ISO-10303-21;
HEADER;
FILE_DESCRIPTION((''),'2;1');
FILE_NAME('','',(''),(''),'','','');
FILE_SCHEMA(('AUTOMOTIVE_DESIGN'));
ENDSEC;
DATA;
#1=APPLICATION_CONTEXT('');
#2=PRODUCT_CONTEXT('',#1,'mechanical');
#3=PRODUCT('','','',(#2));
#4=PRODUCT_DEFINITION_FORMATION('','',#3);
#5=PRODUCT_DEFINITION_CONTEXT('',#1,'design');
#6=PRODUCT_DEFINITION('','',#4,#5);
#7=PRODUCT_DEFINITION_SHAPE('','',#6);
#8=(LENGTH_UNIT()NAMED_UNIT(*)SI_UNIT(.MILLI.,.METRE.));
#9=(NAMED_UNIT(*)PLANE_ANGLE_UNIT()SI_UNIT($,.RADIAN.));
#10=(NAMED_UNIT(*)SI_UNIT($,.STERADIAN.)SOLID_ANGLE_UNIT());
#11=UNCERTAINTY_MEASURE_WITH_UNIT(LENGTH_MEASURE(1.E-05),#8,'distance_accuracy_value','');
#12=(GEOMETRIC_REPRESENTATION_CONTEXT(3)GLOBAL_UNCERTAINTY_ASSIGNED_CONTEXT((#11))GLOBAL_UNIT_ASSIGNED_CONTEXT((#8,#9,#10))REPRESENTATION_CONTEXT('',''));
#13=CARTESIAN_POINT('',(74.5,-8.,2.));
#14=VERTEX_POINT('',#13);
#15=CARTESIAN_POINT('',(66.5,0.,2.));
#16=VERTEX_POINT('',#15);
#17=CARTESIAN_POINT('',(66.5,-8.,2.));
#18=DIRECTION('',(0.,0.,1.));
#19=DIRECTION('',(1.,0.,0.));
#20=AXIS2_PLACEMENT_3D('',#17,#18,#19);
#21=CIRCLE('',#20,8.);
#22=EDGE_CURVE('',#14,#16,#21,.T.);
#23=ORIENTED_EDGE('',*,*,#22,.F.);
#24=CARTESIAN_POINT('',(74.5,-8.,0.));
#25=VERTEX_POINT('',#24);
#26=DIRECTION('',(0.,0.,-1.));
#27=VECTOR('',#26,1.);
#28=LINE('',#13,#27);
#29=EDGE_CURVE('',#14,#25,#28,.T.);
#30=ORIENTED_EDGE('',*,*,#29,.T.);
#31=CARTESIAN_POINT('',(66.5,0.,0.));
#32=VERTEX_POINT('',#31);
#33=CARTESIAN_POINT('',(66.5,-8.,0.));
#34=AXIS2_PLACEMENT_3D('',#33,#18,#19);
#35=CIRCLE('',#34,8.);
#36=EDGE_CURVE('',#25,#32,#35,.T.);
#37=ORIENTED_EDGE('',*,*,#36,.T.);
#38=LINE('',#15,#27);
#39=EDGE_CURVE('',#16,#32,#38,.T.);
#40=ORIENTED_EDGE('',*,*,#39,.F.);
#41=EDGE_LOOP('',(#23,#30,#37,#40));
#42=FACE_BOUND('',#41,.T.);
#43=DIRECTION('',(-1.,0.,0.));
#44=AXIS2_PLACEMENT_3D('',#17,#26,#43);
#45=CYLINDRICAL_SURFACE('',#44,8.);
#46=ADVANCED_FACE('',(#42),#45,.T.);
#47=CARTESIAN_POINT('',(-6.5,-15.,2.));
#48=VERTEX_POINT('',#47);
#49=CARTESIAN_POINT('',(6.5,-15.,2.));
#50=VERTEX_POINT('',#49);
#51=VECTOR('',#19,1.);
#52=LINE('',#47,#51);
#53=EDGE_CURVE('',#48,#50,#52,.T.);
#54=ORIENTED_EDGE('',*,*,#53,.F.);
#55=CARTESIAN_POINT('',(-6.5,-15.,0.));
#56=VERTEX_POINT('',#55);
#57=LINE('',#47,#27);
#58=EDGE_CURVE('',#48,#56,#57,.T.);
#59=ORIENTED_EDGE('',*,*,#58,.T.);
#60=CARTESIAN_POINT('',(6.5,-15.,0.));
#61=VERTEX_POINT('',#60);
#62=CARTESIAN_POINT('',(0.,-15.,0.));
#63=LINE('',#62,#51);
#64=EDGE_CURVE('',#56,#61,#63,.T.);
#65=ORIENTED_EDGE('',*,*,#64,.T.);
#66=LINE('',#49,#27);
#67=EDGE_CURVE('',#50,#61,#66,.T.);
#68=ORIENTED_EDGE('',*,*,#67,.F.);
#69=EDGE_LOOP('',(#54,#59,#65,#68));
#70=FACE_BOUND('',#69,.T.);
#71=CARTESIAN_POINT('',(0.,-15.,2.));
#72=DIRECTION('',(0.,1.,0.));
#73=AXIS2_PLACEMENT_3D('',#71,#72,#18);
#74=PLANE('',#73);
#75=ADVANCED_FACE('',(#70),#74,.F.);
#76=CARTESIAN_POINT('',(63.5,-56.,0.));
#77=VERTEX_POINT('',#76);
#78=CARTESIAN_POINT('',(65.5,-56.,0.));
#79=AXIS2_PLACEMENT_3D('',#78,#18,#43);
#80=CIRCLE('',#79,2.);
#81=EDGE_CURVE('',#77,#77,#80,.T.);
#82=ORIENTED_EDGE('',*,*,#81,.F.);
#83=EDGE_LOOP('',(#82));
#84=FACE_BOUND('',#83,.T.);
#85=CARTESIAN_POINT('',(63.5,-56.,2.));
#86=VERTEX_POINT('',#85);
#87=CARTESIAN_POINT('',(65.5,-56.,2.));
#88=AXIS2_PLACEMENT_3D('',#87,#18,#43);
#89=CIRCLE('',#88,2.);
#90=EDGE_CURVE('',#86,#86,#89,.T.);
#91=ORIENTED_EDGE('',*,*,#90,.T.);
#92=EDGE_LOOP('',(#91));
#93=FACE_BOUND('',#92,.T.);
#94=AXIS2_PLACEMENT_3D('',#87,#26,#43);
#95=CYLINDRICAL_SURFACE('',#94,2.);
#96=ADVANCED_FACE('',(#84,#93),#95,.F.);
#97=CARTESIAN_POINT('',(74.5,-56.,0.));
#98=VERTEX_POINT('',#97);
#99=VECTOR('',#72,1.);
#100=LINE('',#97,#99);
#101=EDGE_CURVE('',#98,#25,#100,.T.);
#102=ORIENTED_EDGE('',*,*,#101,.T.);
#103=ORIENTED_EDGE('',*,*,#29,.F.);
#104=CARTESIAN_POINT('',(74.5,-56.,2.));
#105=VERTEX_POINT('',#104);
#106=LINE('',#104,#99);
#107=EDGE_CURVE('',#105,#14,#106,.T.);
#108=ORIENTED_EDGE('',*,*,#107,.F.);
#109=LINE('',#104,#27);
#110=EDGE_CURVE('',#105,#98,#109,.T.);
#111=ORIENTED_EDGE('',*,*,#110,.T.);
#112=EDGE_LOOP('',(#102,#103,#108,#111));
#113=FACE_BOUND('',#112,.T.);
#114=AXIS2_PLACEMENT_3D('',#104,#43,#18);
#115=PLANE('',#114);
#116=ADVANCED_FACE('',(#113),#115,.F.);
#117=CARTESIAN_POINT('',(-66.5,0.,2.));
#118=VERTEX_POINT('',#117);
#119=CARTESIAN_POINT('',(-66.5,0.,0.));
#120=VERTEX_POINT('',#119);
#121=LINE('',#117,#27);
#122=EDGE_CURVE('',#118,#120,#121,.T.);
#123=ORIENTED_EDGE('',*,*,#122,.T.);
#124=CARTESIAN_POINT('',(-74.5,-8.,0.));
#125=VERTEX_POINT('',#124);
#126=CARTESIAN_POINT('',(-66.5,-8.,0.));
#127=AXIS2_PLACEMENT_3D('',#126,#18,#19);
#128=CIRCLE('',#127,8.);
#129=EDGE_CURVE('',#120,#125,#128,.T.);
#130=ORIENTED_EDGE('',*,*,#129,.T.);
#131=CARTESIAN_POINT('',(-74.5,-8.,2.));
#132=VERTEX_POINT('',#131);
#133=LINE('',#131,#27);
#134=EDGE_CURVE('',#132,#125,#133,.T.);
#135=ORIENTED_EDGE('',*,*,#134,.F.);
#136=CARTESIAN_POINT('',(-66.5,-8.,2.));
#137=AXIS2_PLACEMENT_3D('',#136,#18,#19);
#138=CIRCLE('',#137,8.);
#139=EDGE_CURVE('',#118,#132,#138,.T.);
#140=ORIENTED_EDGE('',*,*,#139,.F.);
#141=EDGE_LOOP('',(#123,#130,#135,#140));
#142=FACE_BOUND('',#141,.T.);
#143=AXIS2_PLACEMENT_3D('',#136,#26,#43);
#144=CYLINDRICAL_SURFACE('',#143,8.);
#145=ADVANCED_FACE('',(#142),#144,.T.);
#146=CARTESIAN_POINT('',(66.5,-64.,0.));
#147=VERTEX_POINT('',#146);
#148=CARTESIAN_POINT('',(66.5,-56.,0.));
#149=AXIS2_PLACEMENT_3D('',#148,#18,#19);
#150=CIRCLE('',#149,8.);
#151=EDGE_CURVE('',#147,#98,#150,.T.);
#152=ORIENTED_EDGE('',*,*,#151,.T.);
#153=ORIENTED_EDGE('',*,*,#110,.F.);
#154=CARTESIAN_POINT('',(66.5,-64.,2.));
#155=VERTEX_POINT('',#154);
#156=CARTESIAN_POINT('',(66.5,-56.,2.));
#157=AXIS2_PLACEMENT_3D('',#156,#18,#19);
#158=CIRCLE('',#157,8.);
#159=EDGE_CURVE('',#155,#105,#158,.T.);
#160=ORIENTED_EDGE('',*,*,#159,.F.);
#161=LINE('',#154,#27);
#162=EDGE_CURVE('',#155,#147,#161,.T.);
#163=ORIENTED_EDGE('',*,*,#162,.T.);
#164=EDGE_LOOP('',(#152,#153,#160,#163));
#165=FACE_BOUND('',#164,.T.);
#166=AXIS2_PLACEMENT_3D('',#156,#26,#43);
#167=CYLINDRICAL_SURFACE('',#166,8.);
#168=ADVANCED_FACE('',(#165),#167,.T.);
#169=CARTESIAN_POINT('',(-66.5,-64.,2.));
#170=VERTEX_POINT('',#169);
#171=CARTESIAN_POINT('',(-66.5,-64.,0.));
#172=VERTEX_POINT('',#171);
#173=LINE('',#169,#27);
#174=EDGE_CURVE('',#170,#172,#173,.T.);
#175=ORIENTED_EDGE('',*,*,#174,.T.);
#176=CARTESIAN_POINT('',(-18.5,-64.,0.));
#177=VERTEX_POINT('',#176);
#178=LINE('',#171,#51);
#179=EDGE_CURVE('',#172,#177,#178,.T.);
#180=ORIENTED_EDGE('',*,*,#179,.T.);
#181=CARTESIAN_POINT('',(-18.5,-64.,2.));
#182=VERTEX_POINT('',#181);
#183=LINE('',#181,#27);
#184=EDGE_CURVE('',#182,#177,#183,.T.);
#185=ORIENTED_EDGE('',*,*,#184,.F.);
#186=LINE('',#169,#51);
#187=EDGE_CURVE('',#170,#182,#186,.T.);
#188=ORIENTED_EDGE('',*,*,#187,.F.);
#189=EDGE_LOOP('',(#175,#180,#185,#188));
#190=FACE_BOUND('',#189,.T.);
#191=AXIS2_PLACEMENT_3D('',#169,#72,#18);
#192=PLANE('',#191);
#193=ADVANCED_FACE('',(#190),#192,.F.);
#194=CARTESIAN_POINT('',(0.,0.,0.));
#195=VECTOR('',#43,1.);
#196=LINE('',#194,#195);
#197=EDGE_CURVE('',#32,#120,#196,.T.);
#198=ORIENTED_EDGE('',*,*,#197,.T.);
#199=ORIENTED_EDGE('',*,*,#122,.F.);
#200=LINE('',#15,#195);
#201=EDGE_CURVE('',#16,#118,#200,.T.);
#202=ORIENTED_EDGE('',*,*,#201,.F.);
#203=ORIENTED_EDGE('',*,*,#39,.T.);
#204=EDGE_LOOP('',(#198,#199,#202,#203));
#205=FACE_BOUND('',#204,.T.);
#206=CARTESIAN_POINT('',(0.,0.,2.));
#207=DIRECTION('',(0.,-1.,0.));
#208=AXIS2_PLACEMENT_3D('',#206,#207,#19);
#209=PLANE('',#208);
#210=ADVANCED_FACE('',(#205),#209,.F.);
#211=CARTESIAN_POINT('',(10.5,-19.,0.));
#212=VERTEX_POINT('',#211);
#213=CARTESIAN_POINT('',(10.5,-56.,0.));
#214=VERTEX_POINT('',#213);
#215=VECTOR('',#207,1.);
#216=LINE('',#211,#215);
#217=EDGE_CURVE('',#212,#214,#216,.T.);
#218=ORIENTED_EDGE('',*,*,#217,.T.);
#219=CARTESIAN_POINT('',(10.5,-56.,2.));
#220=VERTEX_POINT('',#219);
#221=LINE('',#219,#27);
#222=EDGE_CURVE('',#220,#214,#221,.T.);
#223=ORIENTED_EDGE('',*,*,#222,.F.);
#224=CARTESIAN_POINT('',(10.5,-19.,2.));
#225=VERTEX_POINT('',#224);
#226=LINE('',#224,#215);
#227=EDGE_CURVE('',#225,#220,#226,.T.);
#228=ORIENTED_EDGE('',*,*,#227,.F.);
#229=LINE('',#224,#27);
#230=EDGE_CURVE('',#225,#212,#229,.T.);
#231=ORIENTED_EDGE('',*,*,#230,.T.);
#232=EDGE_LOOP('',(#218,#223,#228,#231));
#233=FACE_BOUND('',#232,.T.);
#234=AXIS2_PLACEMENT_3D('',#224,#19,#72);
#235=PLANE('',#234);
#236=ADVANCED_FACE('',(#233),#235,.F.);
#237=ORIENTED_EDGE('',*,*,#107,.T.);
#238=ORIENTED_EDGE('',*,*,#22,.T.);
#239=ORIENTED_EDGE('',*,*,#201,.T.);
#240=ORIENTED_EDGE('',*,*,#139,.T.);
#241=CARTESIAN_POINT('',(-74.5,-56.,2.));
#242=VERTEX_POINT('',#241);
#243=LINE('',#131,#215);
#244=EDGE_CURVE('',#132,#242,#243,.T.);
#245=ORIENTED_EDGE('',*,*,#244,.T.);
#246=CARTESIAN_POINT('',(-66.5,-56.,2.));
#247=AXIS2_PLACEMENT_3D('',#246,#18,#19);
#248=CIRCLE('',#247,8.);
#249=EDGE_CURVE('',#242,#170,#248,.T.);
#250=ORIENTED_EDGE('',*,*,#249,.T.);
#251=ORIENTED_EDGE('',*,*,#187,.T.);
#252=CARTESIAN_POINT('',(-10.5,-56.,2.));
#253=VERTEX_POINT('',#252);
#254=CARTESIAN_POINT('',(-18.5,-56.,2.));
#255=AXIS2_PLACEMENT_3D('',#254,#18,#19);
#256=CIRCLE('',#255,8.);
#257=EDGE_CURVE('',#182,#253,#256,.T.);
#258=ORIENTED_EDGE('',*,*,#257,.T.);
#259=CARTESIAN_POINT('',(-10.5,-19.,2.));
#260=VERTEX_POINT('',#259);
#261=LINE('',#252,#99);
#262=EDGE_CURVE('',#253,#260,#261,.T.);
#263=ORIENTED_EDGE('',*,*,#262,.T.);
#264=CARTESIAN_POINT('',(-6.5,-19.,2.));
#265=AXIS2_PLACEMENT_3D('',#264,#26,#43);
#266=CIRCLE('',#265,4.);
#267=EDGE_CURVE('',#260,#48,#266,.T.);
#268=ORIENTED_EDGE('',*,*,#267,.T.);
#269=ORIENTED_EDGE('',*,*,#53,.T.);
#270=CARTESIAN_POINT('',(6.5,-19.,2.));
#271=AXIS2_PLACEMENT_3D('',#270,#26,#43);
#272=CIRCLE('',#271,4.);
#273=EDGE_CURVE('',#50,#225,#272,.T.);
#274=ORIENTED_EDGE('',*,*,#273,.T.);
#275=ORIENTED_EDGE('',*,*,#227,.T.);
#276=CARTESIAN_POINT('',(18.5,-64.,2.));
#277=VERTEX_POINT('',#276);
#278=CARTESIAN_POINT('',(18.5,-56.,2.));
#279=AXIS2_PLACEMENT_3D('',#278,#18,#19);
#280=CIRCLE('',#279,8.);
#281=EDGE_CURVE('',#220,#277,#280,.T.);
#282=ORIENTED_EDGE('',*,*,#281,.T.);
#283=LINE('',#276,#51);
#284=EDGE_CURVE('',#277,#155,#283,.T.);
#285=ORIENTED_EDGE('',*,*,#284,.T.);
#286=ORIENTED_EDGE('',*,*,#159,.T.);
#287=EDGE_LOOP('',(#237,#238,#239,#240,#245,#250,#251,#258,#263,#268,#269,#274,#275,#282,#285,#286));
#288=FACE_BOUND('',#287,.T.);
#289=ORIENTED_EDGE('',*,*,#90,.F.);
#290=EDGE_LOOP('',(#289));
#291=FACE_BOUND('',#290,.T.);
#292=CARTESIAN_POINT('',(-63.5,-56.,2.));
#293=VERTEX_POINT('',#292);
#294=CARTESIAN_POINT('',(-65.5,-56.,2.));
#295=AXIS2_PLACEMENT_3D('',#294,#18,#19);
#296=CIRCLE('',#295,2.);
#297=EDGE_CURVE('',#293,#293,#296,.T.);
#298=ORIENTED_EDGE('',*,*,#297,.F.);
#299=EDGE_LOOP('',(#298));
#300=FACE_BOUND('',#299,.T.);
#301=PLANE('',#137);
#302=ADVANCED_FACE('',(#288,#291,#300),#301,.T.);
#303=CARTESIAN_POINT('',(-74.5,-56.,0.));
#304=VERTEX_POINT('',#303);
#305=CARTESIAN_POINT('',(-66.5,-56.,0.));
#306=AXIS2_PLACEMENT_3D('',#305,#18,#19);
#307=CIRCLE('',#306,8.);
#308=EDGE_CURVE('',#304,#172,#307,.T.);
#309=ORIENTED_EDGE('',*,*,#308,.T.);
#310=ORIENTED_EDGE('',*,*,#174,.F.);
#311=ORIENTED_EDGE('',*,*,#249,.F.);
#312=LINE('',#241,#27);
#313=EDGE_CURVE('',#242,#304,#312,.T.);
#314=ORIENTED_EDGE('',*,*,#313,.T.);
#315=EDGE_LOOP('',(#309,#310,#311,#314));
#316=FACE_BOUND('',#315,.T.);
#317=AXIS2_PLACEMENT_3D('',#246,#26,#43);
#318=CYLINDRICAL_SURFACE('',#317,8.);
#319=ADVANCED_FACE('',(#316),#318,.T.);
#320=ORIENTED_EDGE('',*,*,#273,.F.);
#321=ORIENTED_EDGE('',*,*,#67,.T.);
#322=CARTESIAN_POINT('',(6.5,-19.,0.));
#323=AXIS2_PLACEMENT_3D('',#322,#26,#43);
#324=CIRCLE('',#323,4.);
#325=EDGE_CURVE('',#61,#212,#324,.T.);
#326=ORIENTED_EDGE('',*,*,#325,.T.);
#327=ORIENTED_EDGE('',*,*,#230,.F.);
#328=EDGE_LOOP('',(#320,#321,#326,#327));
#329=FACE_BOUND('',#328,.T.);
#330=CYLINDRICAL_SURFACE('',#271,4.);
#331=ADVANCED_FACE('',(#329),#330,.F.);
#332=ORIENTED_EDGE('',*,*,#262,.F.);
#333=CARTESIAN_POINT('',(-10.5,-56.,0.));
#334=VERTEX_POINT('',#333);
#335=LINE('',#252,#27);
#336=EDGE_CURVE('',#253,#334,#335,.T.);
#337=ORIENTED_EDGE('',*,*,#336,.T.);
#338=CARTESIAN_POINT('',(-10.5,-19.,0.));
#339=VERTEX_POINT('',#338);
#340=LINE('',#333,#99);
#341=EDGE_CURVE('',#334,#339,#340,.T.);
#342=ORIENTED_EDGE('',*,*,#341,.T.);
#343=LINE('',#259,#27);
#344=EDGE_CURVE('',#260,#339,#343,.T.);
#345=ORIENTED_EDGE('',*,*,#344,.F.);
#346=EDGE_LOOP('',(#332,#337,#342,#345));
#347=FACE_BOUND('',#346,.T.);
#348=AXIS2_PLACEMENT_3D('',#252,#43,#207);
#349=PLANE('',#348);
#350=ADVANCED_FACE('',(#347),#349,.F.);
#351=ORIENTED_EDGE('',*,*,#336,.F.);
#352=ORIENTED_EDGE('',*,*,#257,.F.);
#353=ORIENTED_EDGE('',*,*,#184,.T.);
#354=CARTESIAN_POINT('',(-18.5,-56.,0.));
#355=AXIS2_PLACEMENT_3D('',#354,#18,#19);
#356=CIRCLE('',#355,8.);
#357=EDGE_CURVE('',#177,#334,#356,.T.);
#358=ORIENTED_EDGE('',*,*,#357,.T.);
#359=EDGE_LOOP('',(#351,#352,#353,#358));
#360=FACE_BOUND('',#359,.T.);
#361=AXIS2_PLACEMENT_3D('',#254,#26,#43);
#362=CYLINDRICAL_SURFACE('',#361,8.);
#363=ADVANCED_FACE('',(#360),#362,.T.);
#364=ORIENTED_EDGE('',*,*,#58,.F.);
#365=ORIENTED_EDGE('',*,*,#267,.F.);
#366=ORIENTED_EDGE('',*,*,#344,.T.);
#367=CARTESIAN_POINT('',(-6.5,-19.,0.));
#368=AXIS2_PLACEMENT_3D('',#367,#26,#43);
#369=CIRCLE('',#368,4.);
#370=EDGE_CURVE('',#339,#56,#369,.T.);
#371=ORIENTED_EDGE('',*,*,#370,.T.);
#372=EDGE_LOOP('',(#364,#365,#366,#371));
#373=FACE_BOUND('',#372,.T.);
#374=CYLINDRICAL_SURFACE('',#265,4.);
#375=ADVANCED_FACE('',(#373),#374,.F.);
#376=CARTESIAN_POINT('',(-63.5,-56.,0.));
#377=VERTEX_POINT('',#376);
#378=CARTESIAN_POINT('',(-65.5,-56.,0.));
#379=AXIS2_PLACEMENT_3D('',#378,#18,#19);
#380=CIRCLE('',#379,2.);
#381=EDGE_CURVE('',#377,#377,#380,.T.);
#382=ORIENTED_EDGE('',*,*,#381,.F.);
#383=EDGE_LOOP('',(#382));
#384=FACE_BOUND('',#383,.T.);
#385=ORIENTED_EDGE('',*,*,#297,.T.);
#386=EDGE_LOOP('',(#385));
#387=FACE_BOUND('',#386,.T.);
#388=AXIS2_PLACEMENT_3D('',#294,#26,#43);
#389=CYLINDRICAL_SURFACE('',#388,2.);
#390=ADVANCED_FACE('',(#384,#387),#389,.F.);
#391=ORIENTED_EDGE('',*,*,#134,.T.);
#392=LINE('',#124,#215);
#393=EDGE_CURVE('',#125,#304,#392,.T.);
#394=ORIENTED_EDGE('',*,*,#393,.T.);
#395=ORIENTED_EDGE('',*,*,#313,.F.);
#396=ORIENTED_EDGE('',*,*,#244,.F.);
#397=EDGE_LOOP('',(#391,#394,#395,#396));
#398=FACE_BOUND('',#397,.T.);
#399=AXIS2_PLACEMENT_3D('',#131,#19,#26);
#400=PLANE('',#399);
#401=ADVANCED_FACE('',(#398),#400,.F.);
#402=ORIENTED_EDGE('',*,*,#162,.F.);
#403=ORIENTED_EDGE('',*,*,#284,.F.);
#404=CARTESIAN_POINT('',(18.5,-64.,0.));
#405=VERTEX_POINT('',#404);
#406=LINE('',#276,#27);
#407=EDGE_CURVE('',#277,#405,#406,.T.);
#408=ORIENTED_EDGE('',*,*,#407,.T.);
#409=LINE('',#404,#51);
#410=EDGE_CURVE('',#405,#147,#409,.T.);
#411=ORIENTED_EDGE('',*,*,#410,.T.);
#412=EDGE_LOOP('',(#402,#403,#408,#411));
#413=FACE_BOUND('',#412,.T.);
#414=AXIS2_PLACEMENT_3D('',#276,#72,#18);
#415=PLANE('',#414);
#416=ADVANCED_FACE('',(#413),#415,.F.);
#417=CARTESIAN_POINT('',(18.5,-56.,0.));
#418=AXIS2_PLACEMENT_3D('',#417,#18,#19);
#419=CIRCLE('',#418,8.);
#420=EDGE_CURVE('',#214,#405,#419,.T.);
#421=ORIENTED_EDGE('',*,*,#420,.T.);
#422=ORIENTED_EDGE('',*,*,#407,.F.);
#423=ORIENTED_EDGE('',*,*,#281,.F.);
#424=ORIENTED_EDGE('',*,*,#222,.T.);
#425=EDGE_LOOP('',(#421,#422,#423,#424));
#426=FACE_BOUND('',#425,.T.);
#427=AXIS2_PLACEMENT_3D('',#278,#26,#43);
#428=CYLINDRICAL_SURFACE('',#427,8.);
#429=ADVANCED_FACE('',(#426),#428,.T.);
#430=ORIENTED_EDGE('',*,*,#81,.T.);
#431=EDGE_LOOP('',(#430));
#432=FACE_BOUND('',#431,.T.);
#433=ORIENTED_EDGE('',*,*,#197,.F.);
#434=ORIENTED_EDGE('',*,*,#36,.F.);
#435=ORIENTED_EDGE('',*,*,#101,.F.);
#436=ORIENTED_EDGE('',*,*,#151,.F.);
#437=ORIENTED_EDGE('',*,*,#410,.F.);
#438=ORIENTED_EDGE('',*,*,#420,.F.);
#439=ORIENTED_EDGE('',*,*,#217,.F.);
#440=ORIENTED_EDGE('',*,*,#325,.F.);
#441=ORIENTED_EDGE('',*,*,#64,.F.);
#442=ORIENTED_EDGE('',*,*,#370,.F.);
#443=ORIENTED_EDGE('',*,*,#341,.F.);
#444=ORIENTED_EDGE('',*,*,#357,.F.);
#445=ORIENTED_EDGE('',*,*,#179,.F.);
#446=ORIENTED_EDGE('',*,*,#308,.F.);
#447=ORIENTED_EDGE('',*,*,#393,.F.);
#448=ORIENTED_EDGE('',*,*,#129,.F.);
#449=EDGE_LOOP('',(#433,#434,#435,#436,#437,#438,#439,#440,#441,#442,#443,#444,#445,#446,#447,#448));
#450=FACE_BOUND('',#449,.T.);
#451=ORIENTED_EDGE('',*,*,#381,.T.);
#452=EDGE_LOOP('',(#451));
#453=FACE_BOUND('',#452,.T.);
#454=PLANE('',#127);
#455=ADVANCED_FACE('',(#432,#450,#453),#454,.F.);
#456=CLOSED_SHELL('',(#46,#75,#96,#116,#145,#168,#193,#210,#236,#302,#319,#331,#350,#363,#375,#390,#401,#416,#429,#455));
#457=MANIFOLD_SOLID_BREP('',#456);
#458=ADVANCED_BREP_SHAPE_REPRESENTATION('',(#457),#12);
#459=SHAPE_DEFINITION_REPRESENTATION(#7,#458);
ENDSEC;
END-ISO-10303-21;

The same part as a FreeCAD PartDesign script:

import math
import FreeCAD as App
import Part
import Sketcher

V = App.Vector

doc = App.newDocument("Part")
body = doc.addObject("PartDesign::Body", "Body")

# Sketch on XY plane
sketch1 = body.newObject("Sketcher::SketchObject", "Sketch")
sketch1.AttachmentSupport = (doc.getObject("XY_Plane"), [""])
sketch1.MapMode = "FlatFace"
sketch1.addGeometry(Part.ArcOfCircle(Part.Circle(V(-66.5, -8, 0), V(0, 0, 1), 8), math.radians(90), math.radians(180)), False)
sketch1.addGeometry(Part.LineSegment(V(-74.5, -8, 0), V(-74.5, -56, 0)), False)
sketch1.addGeometry(Part.ArcOfCircle(Part.Circle(V(-66.5, -56, 0), V(0, 0, 1), 8), math.radians(-180), math.radians(-90)), False)
sketch1.addGeometry(Part.LineSegment(V(-66.5, -64, 0), V(-18.5, -64, 0)), False)
sketch1.addGeometry(Part.ArcOfCircle(Part.Circle(V(-18.5, -56, 0), V(0, 0, 1), 8), math.radians(-90), math.radians(0)), False)
sketch1.addGeometry(Part.LineSegment(V(-10.5, -56, 0), V(-10.5, -19, 0)), False)
sketch1.addGeometry(Part.ArcOfCircle(Part.Circle(V(-6.5, -19, 0), V(0, 0, 1), 4), math.radians(90), math.radians(180)), False)
sketch1.addGeometry(Part.LineSegment(V(-6.5, -15, 0), V(6.5, -15, 0)), False)
sketch1.addGeometry(Part.ArcOfCircle(Part.Circle(V(6.5, -19, 0), V(0, 0, 1), 4), math.radians(0), math.radians(90)), False)
sketch1.addGeometry(Part.LineSegment(V(10.5, -19, 0), V(10.5, -56, 0)), False)
sketch1.addGeometry(Part.ArcOfCircle(Part.Circle(V(18.5, -56, 0), V(0, 0, 1), 8), math.radians(-180), math.radians(-90)), False)
sketch1.addGeometry(Part.LineSegment(V(18.5, -64, 0), V(66.5, -64, 0)), False)
sketch1.addGeometry(Part.ArcOfCircle(Part.Circle(V(66.5, -56, 0), V(0, 0, 1), 8), math.radians(-90), math.radians(0)), False)
sketch1.addGeometry(Part.LineSegment(V(74.5, -56, 0), V(74.5, -8, 0)), False)
sketch1.addGeometry(Part.ArcOfCircle(Part.Circle(V(66.5, -8, 0), V(0, 0, 1), 8), math.radians(0), math.radians(90)), False)
sketch1.addGeometry(Part.LineSegment(V(66.5, 0, 0), V(-66.5, 0, 0)), False)
sketch1.addGeometry(Part.Circle(V(-65.5, -56, 0), V(0, 0, 1), 2), False)
sketch1.addGeometry(Part.Circle(V(65.5, -56, 0), V(0, 0, 1), 2), False)
sketch1.addConstraint(Sketcher.Constraint("Tangent", 0, 2, 1, 1))
sketch1.addConstraint(Sketcher.Constraint("Tangent", 1, 2, 2, 1))
sketch1.addConstraint(Sketcher.Constraint("Tangent", 2, 2, 3, 1))
sketch1.addConstraint(Sketcher.Constraint("Tangent", 3, 2, 4, 1))
sketch1.addConstraint(Sketcher.Constraint("Tangent", 4, 2, 5, 1))
sketch1.addConstraint(Sketcher.Constraint("Tangent", 5, 2, 6, 2))
sketch1.addConstraint(Sketcher.Constraint("Tangent", 6, 1, 7, 1))
sketch1.addConstraint(Sketcher.Constraint("Tangent", 7, 2, 8, 2))
sketch1.addConstraint(Sketcher.Constraint("Tangent", 8, 1, 9, 1))
sketch1.addConstraint(Sketcher.Constraint("Tangent", 9, 2, 10, 1))
sketch1.addConstraint(Sketcher.Constraint("Tangent", 10, 2, 11, 1))
sketch1.addConstraint(Sketcher.Constraint("Tangent", 11, 2, 12, 1))
sketch1.addConstraint(Sketcher.Constraint("Tangent", 12, 2, 13, 1))
sketch1.addConstraint(Sketcher.Constraint("Tangent", 13, 2, 14, 1))
sketch1.addConstraint(Sketcher.Constraint("Tangent", 14, 2, 15, 1))
sketch1.addConstraint(Sketcher.Constraint("Tangent", 15, 2, 0, 1))
sketch1.addConstraint(Sketcher.Constraint("Vertical", 1))
sketch1.addConstraint(Sketcher.Constraint("Horizontal", 3))
sketch1.addConstraint(Sketcher.Constraint("Vertical", 5))
sketch1.addConstraint(Sketcher.Constraint("Horizontal", 7))
sketch1.addConstraint(Sketcher.Constraint("Vertical", 9))
sketch1.addConstraint(Sketcher.Constraint("Horizontal", 11))
sketch1.addConstraint(Sketcher.Constraint("Vertical", 13))
sketch1.addConstraint(Sketcher.Constraint("Horizontal", 15))
sketch1.addConstraint(Sketcher.Constraint("Equal", 0, 2))
sketch1.addConstraint(Sketcher.Constraint("Equal", 2, 4))
sketch1.addConstraint(Sketcher.Constraint("Equal", 6, 8))
sketch1.addConstraint(Sketcher.Constraint("Equal", 4, 10))
sketch1.addConstraint(Sketcher.Constraint("Equal", 10, 12))
sketch1.addConstraint(Sketcher.Constraint("Equal", 12, 14))
sketch1.addConstraint(Sketcher.Constraint("Equal", 16, 17))
sketch1.addConstraint(Sketcher.Constraint("Symmetric", 14, 2, 15, 2, -1, 1))
sketch1.addConstraint(Sketcher.Constraint("Symmetric", 4, 3, 10, 3, -2))
sketch1.addConstraint(Sketcher.Constraint("Symmetric", 16, 3, 17, 3, -2))
sketch1.addConstraint(Sketcher.Constraint("Horizontal", 12, 3, 16, 3))
sketch1.addConstraint(Sketcher.Constraint("Equal", 11, 1))
sketch1.addConstraint(Sketcher.Constraint("Diameter", 16, 4.0))
sketch1.addConstraint(Sketcher.Constraint("Radius", 0, 8.0))
sketch1.addConstraint(Sketcher.Constraint("Radius", 6, 4.0))
sketch1.addConstraint(Sketcher.Constraint("DistanceX", 3, 1, 3, 2, 48.0))
sketch1.addConstraint(Sketcher.Constraint("DistanceX", 7, 1, 7, 2, 13.0))
sketch1.addConstraint(Sketcher.Constraint("DistanceY", 5, 1, 5, 2, 37.0))
sketch1.addConstraint(Sketcher.Constraint("DistanceX", 2, 3, 16, 3, 1.0))
pad1 = body.newObject("PartDesign::Pad", "Pad")
pad1.Profile = sketch1
pad1.Length = 2

doc.recompute()
